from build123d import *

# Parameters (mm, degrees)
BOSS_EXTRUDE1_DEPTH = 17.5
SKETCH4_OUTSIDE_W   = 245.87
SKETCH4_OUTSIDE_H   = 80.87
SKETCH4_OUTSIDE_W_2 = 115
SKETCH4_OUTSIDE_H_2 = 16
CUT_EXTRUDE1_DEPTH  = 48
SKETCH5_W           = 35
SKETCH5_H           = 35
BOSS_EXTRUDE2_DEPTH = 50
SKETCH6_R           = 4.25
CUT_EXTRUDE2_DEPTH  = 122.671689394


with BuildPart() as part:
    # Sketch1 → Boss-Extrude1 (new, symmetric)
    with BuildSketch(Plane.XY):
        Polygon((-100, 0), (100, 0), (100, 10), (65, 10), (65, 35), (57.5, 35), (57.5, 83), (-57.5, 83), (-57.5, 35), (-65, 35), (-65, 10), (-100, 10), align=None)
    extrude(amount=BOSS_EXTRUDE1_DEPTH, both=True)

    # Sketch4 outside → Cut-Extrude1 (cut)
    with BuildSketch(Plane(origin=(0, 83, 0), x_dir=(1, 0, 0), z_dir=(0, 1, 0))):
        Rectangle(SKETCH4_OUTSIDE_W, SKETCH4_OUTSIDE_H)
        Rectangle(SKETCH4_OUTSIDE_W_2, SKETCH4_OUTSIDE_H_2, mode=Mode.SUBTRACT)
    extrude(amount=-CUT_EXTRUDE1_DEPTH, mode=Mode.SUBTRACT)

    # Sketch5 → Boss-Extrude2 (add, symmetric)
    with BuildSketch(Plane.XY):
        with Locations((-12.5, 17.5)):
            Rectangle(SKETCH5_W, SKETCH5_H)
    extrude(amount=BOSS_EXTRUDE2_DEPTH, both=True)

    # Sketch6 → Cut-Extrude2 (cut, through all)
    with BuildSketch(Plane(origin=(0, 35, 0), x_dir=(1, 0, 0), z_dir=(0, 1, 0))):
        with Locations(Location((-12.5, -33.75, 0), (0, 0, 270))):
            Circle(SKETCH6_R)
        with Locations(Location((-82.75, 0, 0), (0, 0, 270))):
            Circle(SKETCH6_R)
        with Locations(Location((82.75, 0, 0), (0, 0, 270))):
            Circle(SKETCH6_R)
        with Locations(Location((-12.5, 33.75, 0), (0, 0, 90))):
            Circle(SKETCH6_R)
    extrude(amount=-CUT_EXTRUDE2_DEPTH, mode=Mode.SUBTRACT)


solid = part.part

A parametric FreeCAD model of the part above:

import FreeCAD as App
import Part
import Sketcher
from FreeCAD import Vector
Q = App.Units.Quantity


def add_polygon(sketch, points):
    """Adds a closed chain of lines whose ends are joined by coincident constraints."""
    first, n = sketch.GeometryCount, len(points)
    for a, b in zip(points, points[1:] + points[:1]):
        sketch.addGeometry(Part.LineSegment(App.Vector(*a, 0), App.Vector(*b, 0)), False)
    for i in range(n):
        sketch.addConstraint(Sketcher.Constraint("Coincident", first + i, 2, first + (i + 1) % n, 1))

doc = App.newDocument("Part")
params = doc.addObject("Spreadsheet::Sheet", "Params")
for row, (alias, value) in enumerate([
    ("sketch1_width", "200 mm"),
    ("sketch1_width2", "35 mm"),
    ("sketch1_width3", "115 mm"),
    ("sketch1_height", "10 mm"),
    ("sketch1_height2", "25 mm"),
    ("pad1_length", "35 mm"),
    ("sketch2_width", "115 mm"),
    ("sketch2_height", "16 mm"),
    ("sketch2_width2", "245.87 mm"),
    ("sketch2_height2", "80.87 mm"),
    ("pocket1_length", "48 mm"),
    ("sketch3_width", "35 mm"),
    ("pad2_length", "100 mm"),
    ("sketch4_diameter", "8.5 mm"),
], start=1):
    params.set(f"A{row}", alias)
    params.set(f"B{row}", "=" + value)
    params.setAlias(f"B{row}", alias)

body = doc.addObject("PartDesign::Body", "Body")

# Sketch on XY plane
sketch1 = body.newObject("Sketcher::SketchObject", "Sketch")
sketch1.AttachmentSupport = (doc.getObject("XY_Plane"), [""])
sketch1.MapMode = "FlatFace"
add_polygon(sketch1, [(-100, 0), (100, 0), (100, 10), (65, 10), (65, 35), (58, 35), (58, 83), (-58, 83), (-58, 35), (-65, 35), (-65, 10), (-100, 10)])  # lines 0-11
sketch1.addConstraint([
    Sketcher.Constraint("Horizontal", 0),
    Sketcher.Constraint("Vertical", 1),
    Sketcher.Constraint("Horizontal", 2),
    Sketcher.Constraint("Vertical", 3),
    Sketcher.Constraint("Horizontal", 4),
    Sketcher.Constraint("Vertical", 5),
    Sketcher.Constraint("Horizontal", 6),
    Sketcher.Constraint("Vertical", 7),
    Sketcher.Constraint("Horizontal", 8),
    Sketcher.Constraint("Vertical", 9),
    Sketcher.Constraint("Horizontal", 10),
    Sketcher.Constraint("Vertical", 11),
    Sketcher.Constraint("Symmetric", 0, 2, 11, 2, -1, 1),
    Sketcher.Constraint("Symmetric", 4, 2, 7, 2, -2),
    Sketcher.Constraint("Symmetric", 2, 2, 9, 2, -2),
    Sketcher.Constraint("DistanceX", 0, 1, 0, 2, Q("200 mm")),
    Sketcher.Constraint("DistanceX", 2, 2, 2, 1, Q("35 mm")),
    Sketcher.Constraint("DistanceX", 6, 2, 6, 1, Q("115 mm")),
    Sketcher.Constraint("DistanceY", 1, 1, 1, 2, Q("10 mm")),
    Sketcher.Constraint("DistanceY", 3, 1, 3, 2, Q("25 mm")),
    Sketcher.Constraint("DistanceY", 5, 1, 5, 2, Q("48 mm")),
])
sketch1.setExpression("Constraints[27]", "Params.sketch1_width")
sketch1.setExpression("Constraints[28]", "Params.sketch1_width2")
sketch1.setExpression("Constraints[29]", "Params.sketch1_width3")
sketch1.setExpression("Constraints[30]", "Params.sketch1_height")
sketch1.setExpression("Constraints[31]", "Params.sketch1_height2")
pad1 = body.newObject("PartDesign::Pad", "Pad")
pad1.Profile = sketch1
pad1.setExpression("Length", "Params.pad1_length")
pad1.Midplane = True

# Sketch on XZ plane
sketch2 = body.newObject("Sketcher::SketchObject", "Sketch001")
sketch2.AttachmentSupport = (doc.getObject("XZ_Plane"), [""])
sketch2.MapMode = "FlatFace"
sketch2.AttachmentOffset = App.Placement(Vector(0, 0, -83), App.Rotation())
add_polygon(sketch2, [(-123, -40), (-123, 40), (123, 40), (123, -40)])  # lines 0-3
add_polygon(sketch2, [(58, 8), (-58, 8), (-58, -8), (58, -8)])  # lines 4-7
sketch2.addConstraint([
    Sketcher.Constraint("Vertical", 0),
    Sketcher.Constraint("Horizontal", 1),
    Sketcher.Constraint("Vertical", 2),
    Sketcher.Constraint("Horizontal", 3),
    Sketcher.Constraint("Horizontal", 4),
    Sketcher.Constraint("Vertical", 5),
    Sketcher.Constraint("Horizontal", 6),
    Sketcher.Constraint("Vertical", 7),
    Sketcher.Constraint("Symmetric", 0, 2, 2, 2, -1, 1),
    Sketcher.Constraint("Symmetric", 4, 2, 6, 2, -1, 1),
    Sketcher.Constraint("DistanceX", 4, 2, 4, 1, Q("115 mm")),
    Sketcher.Constraint("DistanceY", 5, 2, 5, 1, Q("16 mm")),
    Sketcher.Constraint("DistanceX", 1, 1, 1, 2, Q("245.87 mm")),
    Sketcher.Constraint("DistanceY", 0, 1, 0, 2, Q("80.87 mm")),
])
sketch2.setExpression("Constraints[18]", "Params.sketch2_width")
sketch2.setExpression("Constraints[19]", "Params.sketch2_height")
sketch2.setExpression("Constraints[20]", "Params.sketch2_width2")
sketch2.setExpression("Constraints[21]", "Params.sketch2_height2")
pocket1 = body.newObject("PartDesign::Pocket", "Pocket")
pocket1.Profile = sketch2
pocket1.setExpression("Length", "Params.pocket1_length")
pocket1.Reversed = True

# Sketch on XY plane
sketch3 = body.newObject("Sketcher::SketchObject", "Sketch002")
sketch3.AttachmentSupport = (doc.getObject("XY_Plane"), [""])
sketch3.MapMode = "FlatFace"
add_polygon(sketch3, [(-30, 35), (-30, 0), (5, 0), (5, 35)])  # lines 0-3
sketch3.addConstraint([
    Sketcher.Constraint("Vertical", 0),
    Sketcher.Constraint("Horizontal", 1),
    Sketcher.Constraint("Vertical", 2),
    Sketcher.Constraint("Horizontal", 3),
    Sketcher.Constraint("PointOnObject", 0, 2, -1),
    Sketcher.Constraint("Equal", 3, 0),
    Sketcher.Constraint("DistanceX", 1, 1, 1, 2, Q("35 mm")),
    Sketcher.Constraint("DistanceX", 0, 2, -1, 1, Q("30 mm")),
])
sketch3.setExpression("Constraints[10]", "Params.sketch3_width")
pad2 = body.newObject("PartDesign::Pad", "Pad001")
pad2.Profile = sketch3
pad2.setExpression("Length", "Params.pad2_length")
pad2.Midplane = True

# Sketch on XZ plane
sketch4 = body.newObject("Sketcher::SketchObject", "Sketch003")
sketch4.AttachmentSupport = (doc.getObject("XZ_Plane"), [""])
sketch4.MapMode = "FlatFace"
sketch4.AttachmentOffset = App.Placement(Vector(0, 0, -35), App.Rotation())
sketch4.addGeometry([
    Part.Circle(Vector(-12.5, 33.8, 0), Vector(0, 0, 1), 4.2),
    Part.Circle(Vector(-82.8, 0, 0), Vector(0, 0, 1), 4.2),
    Part.Circle(Vector(82.8, 0, 0), Vector(0, 0, 1), 4.2),
    Part.Circle(Vector(-12.5, -33.8, 0), Vector(0, 0, 1), 4.2),
], False)
sketch4.addConstraint([
    Sketcher.Constraint("Equal", 0, 1),
    Sketcher.Constraint("Equal", 1, 2),
    Sketcher.Constraint("Equal", 2, 3),
    Sketcher.Constraint("Symmetric", 1, 3, 2, 3, -1, 1),
    Sketcher.Constraint("Symmetric", 0, 3, 3, 3, -1),
    Sketcher.Constraint("PointOnObject", 1, 3, -1),
    Sketcher.Constraint("Diameter", 0, Q("8.5 mm")),
    Sketcher.Constraint("DistanceX", 0, 3, -1, 1, Q("12.5 mm")),
    Sketcher.Constraint("DistanceX", 1, 3, 2, 3, Q("165.5 mm")),
    Sketcher.Constraint("DistanceY", 3, 3, 0, 3, Q("67.5 mm")),
])
sketch4.setExpression("Constraints[6]", "Params.sketch4_diameter")
pocket2 = body.newObject("PartDesign::Pocket", "Pocket001")
pocket2.Profile = sketch4
pocket2.Type = "ThroughAll"
pocket2.Reversed = True

doc.recompute()
